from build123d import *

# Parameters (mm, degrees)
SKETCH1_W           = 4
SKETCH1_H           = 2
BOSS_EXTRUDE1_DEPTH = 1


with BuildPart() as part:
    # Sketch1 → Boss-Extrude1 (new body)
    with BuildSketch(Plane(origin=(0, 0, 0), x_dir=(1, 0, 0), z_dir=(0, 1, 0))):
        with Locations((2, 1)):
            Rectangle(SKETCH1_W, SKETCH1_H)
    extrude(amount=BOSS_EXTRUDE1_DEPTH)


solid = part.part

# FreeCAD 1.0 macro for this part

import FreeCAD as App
import Part
import Sketcher
Q = App.Units.Quantity


def add_polygon(sketch, points):
    """Adds a closed chain of lines whose ends are joined by coincident constraints."""
    first, n = sketch.GeometryCount, len(points)
    for a, b in zip(points, points[1:] + points[:1]):
        sketch.addGeometry(Part.LineSegment(App.Vector(*a, 0), App.Vector(*b, 0)), False)
    for i in range(n):
        sketch.addConstraint(Sketcher.Constraint("Coincident", first + i, 2, first + (i + 1) % n, 1))

doc = App.newDocument("Part")
params = doc.addObject("Spreadsheet::Sheet", "Params")
for row, (alias, value) in enumerate([
    ("sketch1_width", "4 mm"),
    ("sketch1_height", "2 mm"),
    ("pad1_length", "1 mm"),
], start=1):
    params.set(f"A{row}", alias)
    params.set(f"B{row}", "=" + value)
    params.setAlias(f"B{row}", alias)

body = doc.addObject("PartDesign::Body", "Body")

# Sketch on XZ plane
sketch1 = body.newObject("Sketcher::SketchObject", "Sketch")
sketch1.AttachmentSupport = (doc.getObject("XZ_Plane"), [""])
sketch1.MapMode = "FlatFace"
add_polygon(sketch1, [(0, -2), (0, 0), (4, 0), (4, -2)])  # lines 0-3
sketch1.addConstraint([
    Sketcher.Constraint("Vertical", 0),
    Sketcher.Constraint("Horizontal", 1),
    Sketcher.Constraint("Vertical", 2),
    Sketcher.Constraint("Horizontal", 3),
    Sketcher.Constraint("Coincident", 0, 2, -1, 1),
    Sketcher.Constraint("DistanceX", 1, 1, 1, 2, Q("4 mm")),
    Sketcher.Constraint("DistanceY", 0, 1, 0, 2, Q("2 mm")),
])
sketch1.setExpression("Constraints[9]", "Params.sketch1_width")
sketch1.setExpression("Constraints[10]", "Params.sketch1_height")
pad1 = body.newObject("PartDesign::Pad", "Pad")
pad1.Profile = sketch1
pad1.setExpression("Length", "Params.pad1_length")
pad1.Reversed = True

doc.recompute()
